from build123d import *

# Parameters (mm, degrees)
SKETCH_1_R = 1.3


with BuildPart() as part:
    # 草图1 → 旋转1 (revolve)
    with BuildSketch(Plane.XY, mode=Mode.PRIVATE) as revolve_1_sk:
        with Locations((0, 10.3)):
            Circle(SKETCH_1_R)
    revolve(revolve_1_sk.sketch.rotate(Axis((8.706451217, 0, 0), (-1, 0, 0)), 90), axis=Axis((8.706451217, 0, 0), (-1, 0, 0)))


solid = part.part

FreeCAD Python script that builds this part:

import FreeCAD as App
import Part
import Sketcher

V = App.Vector
Q = App.Units.Quantity

doc = App.newDocument("Part")
body = doc.addObject("PartDesign::Body", "Body")

# Sketch on XY plane
sketch1 = doc.addObject("Sketcher::SketchObject", "Sketch")
body.addObject(sketch1)
sketch1.AttachmentSupport = (doc.XY_Plane, [""])
sketch1.MapMode = "FlatFace"
sketch1.addGeometry(Part.Circle(V(0, 10.3, 0), V(0, 0, 1), 1.3), False)
sketch1.addConstraint([
    Sketcher.Constraint("PointOnObject", 0, 3, -2),
    Sketcher.Constraint("Diameter", 0, Q("2.6 mm")),
    Sketcher.Constraint("DistanceY", -1, 1, 0, 3, Q("10.3 mm")),
])
revolution = doc.addObject("PartDesign::Revolution", "Revolution")
body.addObject(revolution)
revolution.Profile = sketch1
revolution.ReferenceAxis = (sketch1, ["H_Axis"])
revolution.Angle = 360

doc.recompute()
